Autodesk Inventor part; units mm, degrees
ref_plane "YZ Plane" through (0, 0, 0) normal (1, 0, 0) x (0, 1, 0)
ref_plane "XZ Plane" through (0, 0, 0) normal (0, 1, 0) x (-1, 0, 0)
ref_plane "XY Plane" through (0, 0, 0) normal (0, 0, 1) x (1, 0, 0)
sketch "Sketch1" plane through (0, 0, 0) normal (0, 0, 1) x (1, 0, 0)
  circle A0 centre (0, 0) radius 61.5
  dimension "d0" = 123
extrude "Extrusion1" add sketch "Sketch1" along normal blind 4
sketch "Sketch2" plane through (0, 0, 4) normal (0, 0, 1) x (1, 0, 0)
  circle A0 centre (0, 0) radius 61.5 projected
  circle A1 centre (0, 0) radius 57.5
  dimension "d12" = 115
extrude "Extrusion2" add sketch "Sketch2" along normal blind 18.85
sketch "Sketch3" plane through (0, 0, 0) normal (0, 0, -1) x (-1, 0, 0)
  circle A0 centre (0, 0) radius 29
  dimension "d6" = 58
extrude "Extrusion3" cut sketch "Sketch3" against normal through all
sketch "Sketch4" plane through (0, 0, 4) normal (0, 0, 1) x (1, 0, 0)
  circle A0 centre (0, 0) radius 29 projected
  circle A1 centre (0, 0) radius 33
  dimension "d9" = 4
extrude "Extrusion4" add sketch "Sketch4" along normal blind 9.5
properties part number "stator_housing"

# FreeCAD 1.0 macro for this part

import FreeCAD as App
import Part
import Sketcher

doc = App.newDocument("Part")
body = doc.addObject("PartDesign::Body", "Body")

# Sketch on XY plane
sketch1 = body.newObject("Sketcher::SketchObject", "Sketch")
sketch1.AttachmentSupport = (doc.getObject("XY_Plane"), [""])
sketch1.MapMode = "FlatFace"
sketch1.addGeometry(Part.Circle(App.Vector(0, 0, 0), App.Vector(0, 0, 1), 62), False)
sketch1.addConstraint([
    Sketcher.Constraint("Coincident", 0, 3, -1, 1),
    Sketcher.Constraint("Diameter", 0, 123.0),
])
pad1 = body.newObject("PartDesign::Pad", "Pad")
pad1.Profile = sketch1
pad1.Length = 4

# Sketch on XY plane
sketch2 = body.newObject("Sketcher::SketchObject", "Sketch001")
sketch2.AttachmentSupport = (doc.getObject("XY_Plane"), [""])
sketch2.MapMode = "FlatFace"
sketch2.AttachmentOffset = App.Placement(App.Vector(0, 0, 4), App.Rotation())
sketch2.addGeometry([
    Part.Circle(App.Vector(0, 0, 0), App.Vector(0, 0, 1), 62),
    Part.Circle(App.Vector(0, 0, 0), App.Vector(0, 0, 1), 58),
], False)
sketch2.addConstraint([
    Sketcher.Constraint("Coincident", 0, 3, -1, 1),
    Sketcher.Constraint("Coincident", 1, 3, -1, 1),
    Sketcher.Constraint("Diameter", 1, 115.0),
    Sketcher.Constraint("Diameter", 0, 123.0),
])
pad2 = body.newObject("PartDesign::Pad", "Pad001")
pad2.Profile = sketch2
pad2.Length = 18.85

# Sketch on XY plane
sketch3 = body.newObject("Sketcher::SketchObject", "Sketch002")
sketch3.AttachmentSupport = (doc.getObject("XY_Plane"), [""])
sketch3.MapMode = "FlatFace"
sketch3.addGeometry(Part.Circle(App.Vector(0, 0, 0), App.Vector(0, 0, 1), 29), False)
sketch3.addConstraint([
    Sketcher.Constraint("Coincident", 0, 3, -1, 1),
    Sketcher.Constraint("Diameter", 0, 58.0),
])
pocket1 = body.newObject("PartDesign::Pocket", "Pocket")
pocket1.Profile = sketch3
pocket1.Type = "ThroughAll"
pocket1.Reversed = True

# Sketch on XY plane
sketch4 = body.newObject("Sketcher::SketchObject", "Sketch003")
sketch4.AttachmentSupport = (doc.getObject("XY_Plane"), [""])
sketch4.MapMode = "FlatFace"
sketch4.AttachmentOffset = App.Placement(App.Vector(0, 0, 4), App.Rotation())
sketch4.addGeometry([
    Part.Circle(App.Vector(0, 0, 0), App.Vector(0, 0, 1), 33),
    Part.Circle(App.Vector(0, 0, 0), App.Vector(0, 0, 1), 29),
], False)
sketch4.addConstraint([
    Sketcher.Constraint("Coincident", 0, 3, -1, 1),
    Sketcher.Constraint("Coincident", 1, 3, -1, 1),
    Sketcher.Constraint("Diameter", 0, 66.0),
    Sketcher.Constraint("Diameter", 1, 58.0),
])
pad3 = body.newObject("PartDesign::Pad", "Pad002")
pad3.Profile = sketch4
pad3.Length = 9.5

doc.recompute()
